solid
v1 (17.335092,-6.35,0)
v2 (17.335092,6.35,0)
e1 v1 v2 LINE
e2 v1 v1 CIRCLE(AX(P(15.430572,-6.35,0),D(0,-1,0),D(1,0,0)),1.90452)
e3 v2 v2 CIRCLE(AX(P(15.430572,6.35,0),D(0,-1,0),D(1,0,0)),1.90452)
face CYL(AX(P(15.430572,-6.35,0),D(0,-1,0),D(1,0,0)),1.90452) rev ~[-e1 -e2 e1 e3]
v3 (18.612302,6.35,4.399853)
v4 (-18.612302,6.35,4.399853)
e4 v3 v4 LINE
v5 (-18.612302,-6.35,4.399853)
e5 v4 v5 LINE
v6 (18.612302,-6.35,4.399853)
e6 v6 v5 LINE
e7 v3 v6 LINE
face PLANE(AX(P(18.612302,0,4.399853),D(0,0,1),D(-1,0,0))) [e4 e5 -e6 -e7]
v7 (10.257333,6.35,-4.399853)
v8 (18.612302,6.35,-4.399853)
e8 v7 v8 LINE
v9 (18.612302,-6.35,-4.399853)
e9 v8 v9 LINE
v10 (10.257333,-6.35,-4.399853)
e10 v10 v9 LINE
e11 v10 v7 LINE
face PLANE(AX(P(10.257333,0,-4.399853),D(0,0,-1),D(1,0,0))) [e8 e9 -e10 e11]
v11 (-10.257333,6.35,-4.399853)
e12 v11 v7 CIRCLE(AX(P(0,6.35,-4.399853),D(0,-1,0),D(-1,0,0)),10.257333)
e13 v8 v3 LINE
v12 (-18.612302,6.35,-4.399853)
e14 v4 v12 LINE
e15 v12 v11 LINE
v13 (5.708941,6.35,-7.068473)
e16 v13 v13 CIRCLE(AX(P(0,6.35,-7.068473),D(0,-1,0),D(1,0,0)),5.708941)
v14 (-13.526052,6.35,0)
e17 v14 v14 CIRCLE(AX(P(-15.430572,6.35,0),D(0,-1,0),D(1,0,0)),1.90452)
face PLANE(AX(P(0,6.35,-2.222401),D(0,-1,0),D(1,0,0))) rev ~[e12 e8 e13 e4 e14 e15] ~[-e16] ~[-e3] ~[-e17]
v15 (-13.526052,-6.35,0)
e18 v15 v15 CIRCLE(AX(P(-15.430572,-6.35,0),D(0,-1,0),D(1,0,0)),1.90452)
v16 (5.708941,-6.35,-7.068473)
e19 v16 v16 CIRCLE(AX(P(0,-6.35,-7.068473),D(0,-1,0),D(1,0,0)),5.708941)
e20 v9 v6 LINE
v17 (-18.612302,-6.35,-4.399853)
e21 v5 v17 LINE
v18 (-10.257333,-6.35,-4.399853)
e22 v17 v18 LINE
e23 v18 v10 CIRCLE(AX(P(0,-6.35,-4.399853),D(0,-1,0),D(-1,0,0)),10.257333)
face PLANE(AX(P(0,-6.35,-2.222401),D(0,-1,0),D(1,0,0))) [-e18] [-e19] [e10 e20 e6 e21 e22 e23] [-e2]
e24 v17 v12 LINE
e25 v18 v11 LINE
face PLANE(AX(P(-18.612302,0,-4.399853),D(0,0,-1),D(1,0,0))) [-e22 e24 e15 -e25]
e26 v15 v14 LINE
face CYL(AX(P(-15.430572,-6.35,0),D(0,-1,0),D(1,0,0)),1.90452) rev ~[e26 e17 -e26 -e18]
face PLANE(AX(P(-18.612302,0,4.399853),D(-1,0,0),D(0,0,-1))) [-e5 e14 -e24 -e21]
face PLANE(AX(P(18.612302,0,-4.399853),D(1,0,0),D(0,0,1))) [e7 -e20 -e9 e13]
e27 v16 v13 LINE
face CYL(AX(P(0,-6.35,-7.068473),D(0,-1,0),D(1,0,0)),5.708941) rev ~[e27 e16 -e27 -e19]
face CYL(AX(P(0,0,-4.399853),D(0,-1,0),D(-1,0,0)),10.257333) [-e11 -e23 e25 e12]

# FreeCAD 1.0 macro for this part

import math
import FreeCAD as App
import Part
import Sketcher

V = App.Vector
Q = App.Units.Quantity

doc = App.newDocument("Part")
body = doc.addObject("PartDesign::Body", "Body")

sketch1 = doc.addObject("Sketcher::SketchObject", "Sketch")
body.addObject(sketch1)
sketch1.AttachmentSupport = (doc.XZ_Plane, [""])
sketch1.MapMode = "FlatFace"
sketch1.addGeometry(Part.LineSegment(V(10, -4, 0), V(19, -4, 0)), False)
sketch1.addGeometry(Part.LineSegment(V(19, -4, 0), V(19, 4, 0)), False)
sketch1.addGeometry(Part.LineSegment(V(19, 4, 0), V(-19, 4, 0)), False)
sketch1.addGeometry(Part.LineSegment(V(-19, 4, 0), V(-19, -4, 0)), False)
sketch1.addGeometry(Part.LineSegment(V(-19, -4, 0), V(-10, -4, 0)), False)
sketch1.addGeometry(Part.ArcOfCircle(Part.Circle(V(0, -4, 0), V(0, 0, 1), 10), math.radians(180), math.radians(360)), False)
sketch1.addConstraint(Sketcher.Constraint("Coincident", 0, 2, 1, 1))
sketch1.addConstraint(Sketcher.Constraint("Coincident", 1, 2, 2, 1))
sketch1.addConstraint(Sketcher.Constraint("Coincident", 2, 2, 3, 1))
sketch1.addConstraint(Sketcher.Constraint("Coincident", 3, 2, 4, 1))
sketch1.addConstraint(Sketcher.Constraint("Coincident", 4, 2, 5, 1))
sketch1.addConstraint(Sketcher.Constraint("Coincident", 5, 2, 0, 1))
sketch1.addConstraint(Sketcher.Constraint("Horizontal", 0))
sketch1.addConstraint(Sketcher.Constraint("Vertical", 1))
sketch1.addConstraint(Sketcher.Constraint("Horizontal", 2))
sketch1.addConstraint(Sketcher.Constraint("Vertical", 3))
sketch1.addConstraint(Sketcher.Constraint("Horizontal", 4))
sketch1.addConstraint(Sketcher.Constraint("Symmetric", 0, 2, 2, 2, -1, 1))
sketch1.addConstraint(Sketcher.Constraint("Symmetric", 4, 2, 5, 2, -2))
sketch1.addConstraint(Sketcher.Constraint("Horizontal", 5, 3, 0, 2))
sketch1.addConstraint(Sketcher.Constraint("Radius", 5, 10.257333))
sketch1.addConstraint(Sketcher.Constraint("DistanceX", 4, 2, 0, 2, Q("1.1365998 in")))
sketch1.addConstraint(Sketcher.Constraint("DistanceY", 1, 1, 1, 2, 8.799706))
pad1 = doc.addObject("PartDesign::Pad", "Pad")
body.addObject(pad1)
pad1.Profile = sketch1
pad1.Type = "TwoLengths"
pad1.Length = Q("0.25 in")
pad1.Length2 = Q("0.25 in")

sketch2 = doc.addObject("Sketcher::SketchObject", "Sketch001")
body.addObject(sketch2)
sketch2.AttachmentSupport = (doc.XZ_Plane, [""])
sketch2.MapMode = "FlatFace"
sketch2.AttachmentOffset = App.Placement(V(0, 0, 0.25 * 25.4), App.Rotation())
sketch2.addGeometry(Part.Circle(V(-15.4, 0, 0), V(0, 0, 1), 1.9), False)
sketch2.addConstraint(Sketcher.Constraint("PointOnObject", 0, 3, -1))
sketch2.addConstraint(Sketcher.Constraint("Diameter", 0, 3.80904))
sketch2.addConstraint(Sketcher.Constraint("DistanceX", 0, 3, -1, 1, 15.430572))
pocket1 = doc.addObject("PartDesign::Pocket", "Pocket")
body.addObject(pocket1)
pocket1.Profile = sketch2
pocket1.Length = 15.357033

sketch3 = doc.addObject("Sketcher::SketchObject", "Sketch002")
body.addObject(sketch3)
sketch3.AttachmentSupport = (doc.XZ_Plane, [""])
sketch3.MapMode = "FlatFace"
sketch3.AttachmentOffset = App.Placement(V(0, 0, 0.25 * 25.4), App.Rotation())
sketch3.addGeometry(Part.Circle(V(15.4, 0, 0), V(0, 0, 1), 1.9), False)
sketch3.addConstraint(Sketcher.Constraint("PointOnObject", 0, 3, -1))
sketch3.addConstraint(Sketcher.Constraint("Diameter", 0, 3.80904))
sketch3.addConstraint(Sketcher.Constraint("DistanceX", -1, 1, 0, 3, 15.430572))
pocket2 = doc.addObject("PartDesign::Pocket", "Pocket001")
body.addObject(pocket2)
pocket2.Profile = sketch3
pocket2.Length = 14.148086

sketch4 = doc.addObject("Sketcher::SketchObject", "Sketch003")
body.addObject(sketch4)
sketch4.AttachmentSupport = (doc.XZ_Plane, [""])
sketch4.MapMode = "FlatFace"
sketch4.AttachmentOffset = App.Placement(V(0, 0, 0.25 * 25.4), App.Rotation())
sketch4.addGeometry(Part.Circle(V(0, -7, 0), V(0, 0, 1), 6), False)
sketch4.addConstraint(Sketcher.Constraint("PointOnObject", 0, 3, -2))
sketch4.addConstraint(Sketcher.Constraint("Diameter", 0, 11.417882))
sketch4.addConstraint(Sketcher.Constraint("DistanceY", 0, 3, -1, 1, 7.068473))
pocket3 = doc.addObject("PartDesign::Pocket", "Pocket002")
body.addObject(pocket3)
pocket3.Profile = sketch4
pocket3.Length = 15.330171

doc.recompute()
